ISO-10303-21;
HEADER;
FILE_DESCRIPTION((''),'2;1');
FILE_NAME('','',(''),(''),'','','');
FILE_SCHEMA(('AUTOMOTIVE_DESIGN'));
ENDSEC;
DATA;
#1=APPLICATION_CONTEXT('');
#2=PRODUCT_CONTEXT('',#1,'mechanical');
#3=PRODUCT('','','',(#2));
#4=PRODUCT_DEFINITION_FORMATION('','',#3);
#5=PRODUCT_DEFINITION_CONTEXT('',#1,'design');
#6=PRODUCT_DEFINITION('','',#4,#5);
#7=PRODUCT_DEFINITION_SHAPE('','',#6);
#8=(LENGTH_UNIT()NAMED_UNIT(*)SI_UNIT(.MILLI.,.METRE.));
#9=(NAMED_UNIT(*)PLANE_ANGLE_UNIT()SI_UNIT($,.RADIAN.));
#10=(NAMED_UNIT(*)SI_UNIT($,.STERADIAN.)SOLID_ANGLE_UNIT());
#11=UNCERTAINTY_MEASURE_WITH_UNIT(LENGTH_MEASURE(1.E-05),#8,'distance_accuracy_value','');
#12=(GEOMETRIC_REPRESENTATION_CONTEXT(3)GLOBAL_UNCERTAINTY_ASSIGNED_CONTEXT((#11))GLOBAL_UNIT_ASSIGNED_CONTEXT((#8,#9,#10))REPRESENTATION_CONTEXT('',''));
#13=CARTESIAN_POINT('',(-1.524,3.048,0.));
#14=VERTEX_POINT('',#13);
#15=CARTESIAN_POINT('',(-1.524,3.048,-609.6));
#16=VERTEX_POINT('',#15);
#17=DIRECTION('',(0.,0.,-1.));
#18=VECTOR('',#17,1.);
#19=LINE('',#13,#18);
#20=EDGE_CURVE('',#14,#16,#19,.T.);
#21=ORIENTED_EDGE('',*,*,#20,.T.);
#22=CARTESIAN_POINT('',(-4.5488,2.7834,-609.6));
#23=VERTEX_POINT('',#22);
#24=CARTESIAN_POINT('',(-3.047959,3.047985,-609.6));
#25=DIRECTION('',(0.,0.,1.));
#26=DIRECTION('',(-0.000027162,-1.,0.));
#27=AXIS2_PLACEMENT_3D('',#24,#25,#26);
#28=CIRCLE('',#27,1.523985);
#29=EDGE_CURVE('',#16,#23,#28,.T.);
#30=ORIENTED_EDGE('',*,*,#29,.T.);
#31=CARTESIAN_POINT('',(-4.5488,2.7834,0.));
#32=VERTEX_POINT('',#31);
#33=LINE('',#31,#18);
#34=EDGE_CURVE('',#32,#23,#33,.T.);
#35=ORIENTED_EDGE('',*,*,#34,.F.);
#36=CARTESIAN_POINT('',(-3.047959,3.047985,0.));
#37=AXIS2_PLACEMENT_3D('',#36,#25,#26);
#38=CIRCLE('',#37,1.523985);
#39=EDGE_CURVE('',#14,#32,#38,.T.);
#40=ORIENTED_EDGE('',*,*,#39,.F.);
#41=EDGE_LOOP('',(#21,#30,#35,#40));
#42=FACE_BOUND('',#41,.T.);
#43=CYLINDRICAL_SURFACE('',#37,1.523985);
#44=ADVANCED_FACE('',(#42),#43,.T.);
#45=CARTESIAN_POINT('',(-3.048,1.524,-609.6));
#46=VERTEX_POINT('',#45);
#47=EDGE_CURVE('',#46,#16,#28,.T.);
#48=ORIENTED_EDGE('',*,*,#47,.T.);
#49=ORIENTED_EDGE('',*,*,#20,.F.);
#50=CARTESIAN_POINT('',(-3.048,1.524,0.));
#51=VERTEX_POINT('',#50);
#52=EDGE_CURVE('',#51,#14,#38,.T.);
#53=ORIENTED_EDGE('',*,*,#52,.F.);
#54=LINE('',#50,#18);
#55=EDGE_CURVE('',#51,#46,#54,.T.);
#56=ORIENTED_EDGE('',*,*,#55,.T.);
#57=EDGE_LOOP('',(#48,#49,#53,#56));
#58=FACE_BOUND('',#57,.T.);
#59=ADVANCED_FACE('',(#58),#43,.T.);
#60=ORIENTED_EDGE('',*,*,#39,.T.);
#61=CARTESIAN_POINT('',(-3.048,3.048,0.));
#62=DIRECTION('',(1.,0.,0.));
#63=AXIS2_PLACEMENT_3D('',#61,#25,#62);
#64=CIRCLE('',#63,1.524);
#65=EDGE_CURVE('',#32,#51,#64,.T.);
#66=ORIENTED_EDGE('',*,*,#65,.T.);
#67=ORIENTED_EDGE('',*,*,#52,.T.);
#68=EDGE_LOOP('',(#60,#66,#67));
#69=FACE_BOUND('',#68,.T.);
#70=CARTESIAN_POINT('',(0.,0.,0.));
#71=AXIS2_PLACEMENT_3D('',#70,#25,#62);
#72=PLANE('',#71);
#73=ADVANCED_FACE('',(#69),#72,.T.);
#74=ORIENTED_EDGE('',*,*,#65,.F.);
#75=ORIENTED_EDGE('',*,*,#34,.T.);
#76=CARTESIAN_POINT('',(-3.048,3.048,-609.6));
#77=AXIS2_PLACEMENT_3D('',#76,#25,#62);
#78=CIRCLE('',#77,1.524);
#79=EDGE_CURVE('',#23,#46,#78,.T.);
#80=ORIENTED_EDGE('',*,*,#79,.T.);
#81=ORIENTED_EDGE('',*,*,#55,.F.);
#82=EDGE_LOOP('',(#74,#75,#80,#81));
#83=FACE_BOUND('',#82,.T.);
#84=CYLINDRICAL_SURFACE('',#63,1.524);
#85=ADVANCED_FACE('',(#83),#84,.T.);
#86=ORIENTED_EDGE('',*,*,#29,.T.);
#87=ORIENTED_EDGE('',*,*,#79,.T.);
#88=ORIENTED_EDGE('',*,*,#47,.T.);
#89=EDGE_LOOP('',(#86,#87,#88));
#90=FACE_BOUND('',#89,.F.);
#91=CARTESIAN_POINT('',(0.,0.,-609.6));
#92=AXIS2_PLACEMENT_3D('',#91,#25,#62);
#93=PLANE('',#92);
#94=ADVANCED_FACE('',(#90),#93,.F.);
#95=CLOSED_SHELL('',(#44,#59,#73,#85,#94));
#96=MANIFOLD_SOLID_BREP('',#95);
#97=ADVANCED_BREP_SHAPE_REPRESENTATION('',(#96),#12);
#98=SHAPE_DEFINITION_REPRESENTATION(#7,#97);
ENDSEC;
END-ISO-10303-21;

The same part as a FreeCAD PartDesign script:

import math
import FreeCAD as App
import Part
import Sketcher
Q = App.Units.Quantity

doc = App.newDocument("Part")
body = doc.addObject("PartDesign::Body", "Body")

# Sketch on XY plane
sketch1 = body.newObject("Sketcher::SketchObject", "Sketch")
sketch1.AttachmentSupport = (doc.getObject("XY_Plane"), [""])
sketch1.MapMode = "FlatFace"
sketch1.addGeometry([
    Part.ArcOfCircle(Part.Circle(App.Vector(-3, 3, 0), App.Vector(0, 0, 1), 1.5), math.radians(-170), math.radians(-90)),
    Part.ArcOfCircle(Part.Circle(App.Vector(-3, 3, 0), App.Vector(0, 0, 1), 1.5), math.radians(-90), math.radians(190)),
], False)
sketch1.addConstraint([
    Sketcher.Constraint("Tangent", 0, 1, 1, 2),
    Sketcher.Constraint("Coincident", 1, 1, 0, 2),
    Sketcher.Constraint("Vertical", 0, 3, 1, 1),
    Sketcher.Constraint("Radius", 0, Q("0.06 in")),
    Sketcher.Constraint("DistanceX", 0, 3, -1, 1, Q("0.12 in")),
    Sketcher.Constraint("DistanceY", -1, 1, 0, 3, Q("0.12 in")),
    Sketcher.Constraint("DistanceX", 0, 1, -1, 1, Q("0.1791 in")),
])
pad1 = body.newObject("PartDesign::Pad", "Pad")
pad1.Profile = sketch1
pad1.Length = Q("24 in")
pad1.Reversed = True

doc.recompute()
